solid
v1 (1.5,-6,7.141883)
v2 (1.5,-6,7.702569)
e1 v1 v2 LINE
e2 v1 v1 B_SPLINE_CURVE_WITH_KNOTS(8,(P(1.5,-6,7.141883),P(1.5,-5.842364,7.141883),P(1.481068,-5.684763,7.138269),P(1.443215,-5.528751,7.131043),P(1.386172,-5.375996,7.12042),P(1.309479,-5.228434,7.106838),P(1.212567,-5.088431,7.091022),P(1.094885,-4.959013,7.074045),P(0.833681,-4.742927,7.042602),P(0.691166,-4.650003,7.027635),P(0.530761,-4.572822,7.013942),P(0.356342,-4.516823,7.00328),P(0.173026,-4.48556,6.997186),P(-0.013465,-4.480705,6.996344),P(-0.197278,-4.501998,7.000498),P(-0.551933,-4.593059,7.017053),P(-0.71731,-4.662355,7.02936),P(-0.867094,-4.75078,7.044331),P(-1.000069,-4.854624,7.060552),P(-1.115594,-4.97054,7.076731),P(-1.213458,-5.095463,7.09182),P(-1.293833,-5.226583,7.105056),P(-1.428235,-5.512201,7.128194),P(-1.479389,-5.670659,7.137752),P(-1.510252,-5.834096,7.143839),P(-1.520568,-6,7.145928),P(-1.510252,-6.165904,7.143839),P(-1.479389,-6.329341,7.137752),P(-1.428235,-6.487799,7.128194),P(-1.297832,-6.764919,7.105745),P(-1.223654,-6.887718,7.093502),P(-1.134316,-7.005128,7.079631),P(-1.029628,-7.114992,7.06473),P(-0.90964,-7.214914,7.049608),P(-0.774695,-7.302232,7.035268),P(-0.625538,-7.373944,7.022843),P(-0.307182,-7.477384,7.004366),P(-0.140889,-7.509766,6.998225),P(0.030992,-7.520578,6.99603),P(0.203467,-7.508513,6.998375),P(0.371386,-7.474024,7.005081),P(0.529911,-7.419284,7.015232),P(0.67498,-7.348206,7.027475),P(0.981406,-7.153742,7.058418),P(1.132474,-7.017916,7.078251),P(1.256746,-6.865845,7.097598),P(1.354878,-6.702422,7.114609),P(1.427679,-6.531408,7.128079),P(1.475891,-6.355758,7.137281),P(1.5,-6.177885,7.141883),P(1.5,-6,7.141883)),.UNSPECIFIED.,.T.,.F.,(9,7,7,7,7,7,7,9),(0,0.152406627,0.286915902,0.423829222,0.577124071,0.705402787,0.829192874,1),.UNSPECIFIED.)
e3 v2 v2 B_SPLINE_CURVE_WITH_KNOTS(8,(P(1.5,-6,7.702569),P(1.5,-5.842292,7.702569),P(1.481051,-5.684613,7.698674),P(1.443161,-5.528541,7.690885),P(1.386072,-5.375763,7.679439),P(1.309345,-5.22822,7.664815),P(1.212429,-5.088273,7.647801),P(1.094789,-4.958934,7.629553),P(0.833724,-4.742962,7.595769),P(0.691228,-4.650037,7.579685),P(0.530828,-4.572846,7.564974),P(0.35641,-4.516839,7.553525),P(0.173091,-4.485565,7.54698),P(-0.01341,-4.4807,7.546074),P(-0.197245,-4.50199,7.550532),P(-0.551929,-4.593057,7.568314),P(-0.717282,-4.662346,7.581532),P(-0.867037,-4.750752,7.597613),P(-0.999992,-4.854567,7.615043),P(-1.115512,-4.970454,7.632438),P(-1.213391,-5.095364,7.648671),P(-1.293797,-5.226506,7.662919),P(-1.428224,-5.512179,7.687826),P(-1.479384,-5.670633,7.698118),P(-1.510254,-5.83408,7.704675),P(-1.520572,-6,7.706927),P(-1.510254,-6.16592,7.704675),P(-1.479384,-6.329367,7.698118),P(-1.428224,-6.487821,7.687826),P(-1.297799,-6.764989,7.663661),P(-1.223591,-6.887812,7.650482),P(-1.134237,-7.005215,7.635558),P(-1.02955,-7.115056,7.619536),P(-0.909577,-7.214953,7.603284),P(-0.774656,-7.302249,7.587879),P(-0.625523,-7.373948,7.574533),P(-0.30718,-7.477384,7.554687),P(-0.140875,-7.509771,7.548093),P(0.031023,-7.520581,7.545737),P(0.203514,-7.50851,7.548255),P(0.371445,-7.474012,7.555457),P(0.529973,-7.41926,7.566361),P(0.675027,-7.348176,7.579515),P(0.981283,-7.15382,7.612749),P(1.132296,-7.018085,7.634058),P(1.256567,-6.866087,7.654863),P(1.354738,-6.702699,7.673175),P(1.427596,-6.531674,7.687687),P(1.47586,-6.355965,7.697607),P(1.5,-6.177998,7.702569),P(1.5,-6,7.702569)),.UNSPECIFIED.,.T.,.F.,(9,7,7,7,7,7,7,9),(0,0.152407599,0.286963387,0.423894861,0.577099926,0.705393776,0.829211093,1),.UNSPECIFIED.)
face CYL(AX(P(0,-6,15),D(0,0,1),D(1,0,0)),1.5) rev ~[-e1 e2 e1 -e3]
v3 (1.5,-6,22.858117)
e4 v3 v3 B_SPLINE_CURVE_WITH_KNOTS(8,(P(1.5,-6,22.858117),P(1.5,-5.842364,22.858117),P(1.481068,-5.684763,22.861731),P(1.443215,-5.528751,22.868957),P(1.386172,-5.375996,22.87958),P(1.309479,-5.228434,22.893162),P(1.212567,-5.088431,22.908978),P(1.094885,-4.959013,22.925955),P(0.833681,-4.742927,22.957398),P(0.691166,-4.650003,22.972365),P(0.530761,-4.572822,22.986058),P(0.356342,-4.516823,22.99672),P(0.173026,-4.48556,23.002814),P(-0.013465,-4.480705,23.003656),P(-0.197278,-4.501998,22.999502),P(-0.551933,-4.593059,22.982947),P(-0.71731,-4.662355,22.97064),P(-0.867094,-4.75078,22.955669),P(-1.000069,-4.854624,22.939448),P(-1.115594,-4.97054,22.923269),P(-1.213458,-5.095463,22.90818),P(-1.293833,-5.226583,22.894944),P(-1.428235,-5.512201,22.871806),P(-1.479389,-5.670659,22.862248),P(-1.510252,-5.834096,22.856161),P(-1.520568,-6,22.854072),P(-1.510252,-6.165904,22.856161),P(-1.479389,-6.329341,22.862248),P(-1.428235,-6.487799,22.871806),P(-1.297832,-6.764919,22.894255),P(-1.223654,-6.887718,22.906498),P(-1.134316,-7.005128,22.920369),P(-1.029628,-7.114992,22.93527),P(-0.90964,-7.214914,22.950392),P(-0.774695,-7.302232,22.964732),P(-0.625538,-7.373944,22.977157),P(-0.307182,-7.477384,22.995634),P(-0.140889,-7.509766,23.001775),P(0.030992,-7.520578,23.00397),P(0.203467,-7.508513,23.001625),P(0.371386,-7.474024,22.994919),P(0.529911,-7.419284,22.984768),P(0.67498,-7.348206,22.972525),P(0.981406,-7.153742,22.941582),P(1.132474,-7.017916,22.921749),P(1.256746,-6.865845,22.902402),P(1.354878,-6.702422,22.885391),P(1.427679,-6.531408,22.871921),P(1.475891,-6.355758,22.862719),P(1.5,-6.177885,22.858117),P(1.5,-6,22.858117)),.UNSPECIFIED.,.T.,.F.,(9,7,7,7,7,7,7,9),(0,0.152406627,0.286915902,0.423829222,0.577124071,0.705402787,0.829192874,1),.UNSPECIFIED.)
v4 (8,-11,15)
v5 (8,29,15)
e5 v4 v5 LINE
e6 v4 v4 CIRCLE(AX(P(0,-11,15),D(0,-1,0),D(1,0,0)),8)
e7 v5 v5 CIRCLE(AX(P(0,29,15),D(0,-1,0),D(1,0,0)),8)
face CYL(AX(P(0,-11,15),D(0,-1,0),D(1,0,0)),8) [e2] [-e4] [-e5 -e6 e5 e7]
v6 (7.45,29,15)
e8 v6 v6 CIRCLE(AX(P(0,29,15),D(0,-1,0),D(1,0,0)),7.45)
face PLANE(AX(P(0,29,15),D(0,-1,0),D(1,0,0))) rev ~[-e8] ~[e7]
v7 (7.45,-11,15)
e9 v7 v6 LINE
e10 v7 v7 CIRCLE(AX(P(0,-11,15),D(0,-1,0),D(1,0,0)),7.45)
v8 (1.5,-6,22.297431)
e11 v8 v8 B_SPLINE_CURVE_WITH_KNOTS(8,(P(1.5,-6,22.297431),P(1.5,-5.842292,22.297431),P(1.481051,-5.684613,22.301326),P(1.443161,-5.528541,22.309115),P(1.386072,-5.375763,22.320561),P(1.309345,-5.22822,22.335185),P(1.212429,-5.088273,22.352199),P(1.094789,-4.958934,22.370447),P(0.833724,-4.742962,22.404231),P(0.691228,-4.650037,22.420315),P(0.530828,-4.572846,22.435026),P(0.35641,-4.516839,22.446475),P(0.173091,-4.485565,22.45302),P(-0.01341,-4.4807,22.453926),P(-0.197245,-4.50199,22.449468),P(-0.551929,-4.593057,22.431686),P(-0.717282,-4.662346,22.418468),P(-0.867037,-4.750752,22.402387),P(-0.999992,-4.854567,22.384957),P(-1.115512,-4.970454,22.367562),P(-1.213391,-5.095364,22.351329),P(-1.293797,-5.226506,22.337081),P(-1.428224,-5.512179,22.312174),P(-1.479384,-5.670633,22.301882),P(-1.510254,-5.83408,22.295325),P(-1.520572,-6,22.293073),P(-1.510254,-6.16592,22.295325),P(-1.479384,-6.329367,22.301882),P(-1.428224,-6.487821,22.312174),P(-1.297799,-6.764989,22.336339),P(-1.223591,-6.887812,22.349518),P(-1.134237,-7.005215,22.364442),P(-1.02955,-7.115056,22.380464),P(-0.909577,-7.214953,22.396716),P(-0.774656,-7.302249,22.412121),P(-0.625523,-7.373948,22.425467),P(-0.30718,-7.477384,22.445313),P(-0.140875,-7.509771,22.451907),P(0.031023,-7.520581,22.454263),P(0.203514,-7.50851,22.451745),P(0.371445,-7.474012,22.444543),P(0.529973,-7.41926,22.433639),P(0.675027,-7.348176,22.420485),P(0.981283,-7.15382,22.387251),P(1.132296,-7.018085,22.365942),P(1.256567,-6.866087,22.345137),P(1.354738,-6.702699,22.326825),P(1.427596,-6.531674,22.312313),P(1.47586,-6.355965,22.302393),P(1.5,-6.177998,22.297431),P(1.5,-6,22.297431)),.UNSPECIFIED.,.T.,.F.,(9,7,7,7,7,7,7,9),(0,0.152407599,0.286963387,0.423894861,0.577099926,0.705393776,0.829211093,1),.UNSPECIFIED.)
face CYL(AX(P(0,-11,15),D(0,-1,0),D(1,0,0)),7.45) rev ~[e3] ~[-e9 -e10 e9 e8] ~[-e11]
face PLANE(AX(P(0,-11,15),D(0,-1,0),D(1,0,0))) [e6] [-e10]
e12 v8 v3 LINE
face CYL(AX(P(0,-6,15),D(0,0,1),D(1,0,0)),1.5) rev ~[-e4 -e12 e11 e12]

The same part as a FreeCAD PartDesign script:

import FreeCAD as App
import Part
import Sketcher

V = App.Vector

doc = App.newDocument("Part")
params = doc.addObject("Spreadsheet::Sheet", "Params")
for row, (alias, value) in enumerate([
    ("sketch1_diameter", "16 mm"),
    ("pad1_length", "40 mm"),
    ("sketch2_diameter", "3 mm"),
    ("pocket1_length", "27 mm"),
    ("sketch3_diameter", "14.9 mm"),
], start=1):
    params.set(f"A{row}", alias)
    params.set(f"B{row}", "=" + value)
    params.setAlias(f"B{row}", alias)

body = doc.addObject("PartDesign::Body", "Body")

sketch1 = doc.addObject("Sketcher::SketchObject", "Sketch")
body.addObject(sketch1)
sketch1.AttachmentSupport = (doc.XZ_Plane, [""])
sketch1.MapMode = "FlatFace"
sketch1.addGeometry(Part.Circle(V(0, 15, 0), V(0, 0, 1), 8), False)
sketch1.addConstraint([
    Sketcher.Constraint("PointOnObject", 0, 3, -2),
    Sketcher.Constraint("Diameter", 0, 16.0),
    Sketcher.Constraint("DistanceY", -1, 1, 0, 3, 15.0),
])
sketch1.setExpression("Constraints[1]", "Params.sketch1_diameter")
pad1 = doc.addObject("PartDesign::Pad", "Pad")
body.addObject(pad1)
pad1.Profile = sketch1
pad1.setExpression("Length", "Params.pad1_length")
pad1.Reversed = True

sketch2 = doc.addObject("Sketcher::SketchObject", "Sketch001")
body.addObject(sketch2)
sketch2.AttachmentSupport = (doc.XY_Plane, [""])
sketch2.MapMode = "FlatFace"
sketch2.AttachmentOffset = App.Placement(V(0, 0, 15), App.Rotation())
sketch2.addGeometry(Part.Circle(V(0, 5, 0), V(0, 0, 1), 1.5), False)
sketch2.addConstraint([
    Sketcher.Constraint("PointOnObject", 0, 3, -2),
    Sketcher.Constraint("Diameter", 0, 3.0),
    Sketcher.Constraint("DistanceY", -1, 1, 0, 3, 5.0),
])
sketch2.setExpression("Constraints[1]", "Params.sketch2_diameter")
pocket1 = doc.addObject("PartDesign::Pocket", "Pocket")
body.addObject(pocket1)
pocket1.Profile = sketch2
pocket1.setExpression("Length", "Params.pocket1_length")
pocket1.Midplane = True

sketch3 = doc.addObject("Sketcher::SketchObject", "Sketch002")
body.addObject(sketch3)
sketch3.AttachmentSupport = (doc.XZ_Plane, [""])
sketch3.MapMode = "FlatFace"
sketch3.addGeometry(Part.Circle(V(0, 15, 0), V(0, 0, 1), 7), False)
sketch3.addConstraint([
    Sketcher.Constraint("PointOnObject", 0, 3, -2),
    Sketcher.Constraint("Diameter", 0, 14.9),
    Sketcher.Constraint("DistanceY", -1, 1, 0, 3, 15.0),
])
sketch3.setExpression("Constraints[1]", "Params.sketch3_diameter")
pocket2 = doc.addObject("PartDesign::Pocket", "Pocket001")
body.addObject(pocket2)
pocket2.Profile = sketch3
pocket2.Type = "ThroughAll"
body2 = doc.addObject("PartDesign::Body", "Body001")
doc.recompute()

body.Placement = App.Placement(V(0, -11, 0), App.Rotation(V(0, 0, 1), 0))
boolean = doc.addObject("PartDesign::Boolean", "Boolean")
body2.addObject(boolean)
boolean.Type = "Fuse"
boolean.addObjects([body])

doc.recompute()
